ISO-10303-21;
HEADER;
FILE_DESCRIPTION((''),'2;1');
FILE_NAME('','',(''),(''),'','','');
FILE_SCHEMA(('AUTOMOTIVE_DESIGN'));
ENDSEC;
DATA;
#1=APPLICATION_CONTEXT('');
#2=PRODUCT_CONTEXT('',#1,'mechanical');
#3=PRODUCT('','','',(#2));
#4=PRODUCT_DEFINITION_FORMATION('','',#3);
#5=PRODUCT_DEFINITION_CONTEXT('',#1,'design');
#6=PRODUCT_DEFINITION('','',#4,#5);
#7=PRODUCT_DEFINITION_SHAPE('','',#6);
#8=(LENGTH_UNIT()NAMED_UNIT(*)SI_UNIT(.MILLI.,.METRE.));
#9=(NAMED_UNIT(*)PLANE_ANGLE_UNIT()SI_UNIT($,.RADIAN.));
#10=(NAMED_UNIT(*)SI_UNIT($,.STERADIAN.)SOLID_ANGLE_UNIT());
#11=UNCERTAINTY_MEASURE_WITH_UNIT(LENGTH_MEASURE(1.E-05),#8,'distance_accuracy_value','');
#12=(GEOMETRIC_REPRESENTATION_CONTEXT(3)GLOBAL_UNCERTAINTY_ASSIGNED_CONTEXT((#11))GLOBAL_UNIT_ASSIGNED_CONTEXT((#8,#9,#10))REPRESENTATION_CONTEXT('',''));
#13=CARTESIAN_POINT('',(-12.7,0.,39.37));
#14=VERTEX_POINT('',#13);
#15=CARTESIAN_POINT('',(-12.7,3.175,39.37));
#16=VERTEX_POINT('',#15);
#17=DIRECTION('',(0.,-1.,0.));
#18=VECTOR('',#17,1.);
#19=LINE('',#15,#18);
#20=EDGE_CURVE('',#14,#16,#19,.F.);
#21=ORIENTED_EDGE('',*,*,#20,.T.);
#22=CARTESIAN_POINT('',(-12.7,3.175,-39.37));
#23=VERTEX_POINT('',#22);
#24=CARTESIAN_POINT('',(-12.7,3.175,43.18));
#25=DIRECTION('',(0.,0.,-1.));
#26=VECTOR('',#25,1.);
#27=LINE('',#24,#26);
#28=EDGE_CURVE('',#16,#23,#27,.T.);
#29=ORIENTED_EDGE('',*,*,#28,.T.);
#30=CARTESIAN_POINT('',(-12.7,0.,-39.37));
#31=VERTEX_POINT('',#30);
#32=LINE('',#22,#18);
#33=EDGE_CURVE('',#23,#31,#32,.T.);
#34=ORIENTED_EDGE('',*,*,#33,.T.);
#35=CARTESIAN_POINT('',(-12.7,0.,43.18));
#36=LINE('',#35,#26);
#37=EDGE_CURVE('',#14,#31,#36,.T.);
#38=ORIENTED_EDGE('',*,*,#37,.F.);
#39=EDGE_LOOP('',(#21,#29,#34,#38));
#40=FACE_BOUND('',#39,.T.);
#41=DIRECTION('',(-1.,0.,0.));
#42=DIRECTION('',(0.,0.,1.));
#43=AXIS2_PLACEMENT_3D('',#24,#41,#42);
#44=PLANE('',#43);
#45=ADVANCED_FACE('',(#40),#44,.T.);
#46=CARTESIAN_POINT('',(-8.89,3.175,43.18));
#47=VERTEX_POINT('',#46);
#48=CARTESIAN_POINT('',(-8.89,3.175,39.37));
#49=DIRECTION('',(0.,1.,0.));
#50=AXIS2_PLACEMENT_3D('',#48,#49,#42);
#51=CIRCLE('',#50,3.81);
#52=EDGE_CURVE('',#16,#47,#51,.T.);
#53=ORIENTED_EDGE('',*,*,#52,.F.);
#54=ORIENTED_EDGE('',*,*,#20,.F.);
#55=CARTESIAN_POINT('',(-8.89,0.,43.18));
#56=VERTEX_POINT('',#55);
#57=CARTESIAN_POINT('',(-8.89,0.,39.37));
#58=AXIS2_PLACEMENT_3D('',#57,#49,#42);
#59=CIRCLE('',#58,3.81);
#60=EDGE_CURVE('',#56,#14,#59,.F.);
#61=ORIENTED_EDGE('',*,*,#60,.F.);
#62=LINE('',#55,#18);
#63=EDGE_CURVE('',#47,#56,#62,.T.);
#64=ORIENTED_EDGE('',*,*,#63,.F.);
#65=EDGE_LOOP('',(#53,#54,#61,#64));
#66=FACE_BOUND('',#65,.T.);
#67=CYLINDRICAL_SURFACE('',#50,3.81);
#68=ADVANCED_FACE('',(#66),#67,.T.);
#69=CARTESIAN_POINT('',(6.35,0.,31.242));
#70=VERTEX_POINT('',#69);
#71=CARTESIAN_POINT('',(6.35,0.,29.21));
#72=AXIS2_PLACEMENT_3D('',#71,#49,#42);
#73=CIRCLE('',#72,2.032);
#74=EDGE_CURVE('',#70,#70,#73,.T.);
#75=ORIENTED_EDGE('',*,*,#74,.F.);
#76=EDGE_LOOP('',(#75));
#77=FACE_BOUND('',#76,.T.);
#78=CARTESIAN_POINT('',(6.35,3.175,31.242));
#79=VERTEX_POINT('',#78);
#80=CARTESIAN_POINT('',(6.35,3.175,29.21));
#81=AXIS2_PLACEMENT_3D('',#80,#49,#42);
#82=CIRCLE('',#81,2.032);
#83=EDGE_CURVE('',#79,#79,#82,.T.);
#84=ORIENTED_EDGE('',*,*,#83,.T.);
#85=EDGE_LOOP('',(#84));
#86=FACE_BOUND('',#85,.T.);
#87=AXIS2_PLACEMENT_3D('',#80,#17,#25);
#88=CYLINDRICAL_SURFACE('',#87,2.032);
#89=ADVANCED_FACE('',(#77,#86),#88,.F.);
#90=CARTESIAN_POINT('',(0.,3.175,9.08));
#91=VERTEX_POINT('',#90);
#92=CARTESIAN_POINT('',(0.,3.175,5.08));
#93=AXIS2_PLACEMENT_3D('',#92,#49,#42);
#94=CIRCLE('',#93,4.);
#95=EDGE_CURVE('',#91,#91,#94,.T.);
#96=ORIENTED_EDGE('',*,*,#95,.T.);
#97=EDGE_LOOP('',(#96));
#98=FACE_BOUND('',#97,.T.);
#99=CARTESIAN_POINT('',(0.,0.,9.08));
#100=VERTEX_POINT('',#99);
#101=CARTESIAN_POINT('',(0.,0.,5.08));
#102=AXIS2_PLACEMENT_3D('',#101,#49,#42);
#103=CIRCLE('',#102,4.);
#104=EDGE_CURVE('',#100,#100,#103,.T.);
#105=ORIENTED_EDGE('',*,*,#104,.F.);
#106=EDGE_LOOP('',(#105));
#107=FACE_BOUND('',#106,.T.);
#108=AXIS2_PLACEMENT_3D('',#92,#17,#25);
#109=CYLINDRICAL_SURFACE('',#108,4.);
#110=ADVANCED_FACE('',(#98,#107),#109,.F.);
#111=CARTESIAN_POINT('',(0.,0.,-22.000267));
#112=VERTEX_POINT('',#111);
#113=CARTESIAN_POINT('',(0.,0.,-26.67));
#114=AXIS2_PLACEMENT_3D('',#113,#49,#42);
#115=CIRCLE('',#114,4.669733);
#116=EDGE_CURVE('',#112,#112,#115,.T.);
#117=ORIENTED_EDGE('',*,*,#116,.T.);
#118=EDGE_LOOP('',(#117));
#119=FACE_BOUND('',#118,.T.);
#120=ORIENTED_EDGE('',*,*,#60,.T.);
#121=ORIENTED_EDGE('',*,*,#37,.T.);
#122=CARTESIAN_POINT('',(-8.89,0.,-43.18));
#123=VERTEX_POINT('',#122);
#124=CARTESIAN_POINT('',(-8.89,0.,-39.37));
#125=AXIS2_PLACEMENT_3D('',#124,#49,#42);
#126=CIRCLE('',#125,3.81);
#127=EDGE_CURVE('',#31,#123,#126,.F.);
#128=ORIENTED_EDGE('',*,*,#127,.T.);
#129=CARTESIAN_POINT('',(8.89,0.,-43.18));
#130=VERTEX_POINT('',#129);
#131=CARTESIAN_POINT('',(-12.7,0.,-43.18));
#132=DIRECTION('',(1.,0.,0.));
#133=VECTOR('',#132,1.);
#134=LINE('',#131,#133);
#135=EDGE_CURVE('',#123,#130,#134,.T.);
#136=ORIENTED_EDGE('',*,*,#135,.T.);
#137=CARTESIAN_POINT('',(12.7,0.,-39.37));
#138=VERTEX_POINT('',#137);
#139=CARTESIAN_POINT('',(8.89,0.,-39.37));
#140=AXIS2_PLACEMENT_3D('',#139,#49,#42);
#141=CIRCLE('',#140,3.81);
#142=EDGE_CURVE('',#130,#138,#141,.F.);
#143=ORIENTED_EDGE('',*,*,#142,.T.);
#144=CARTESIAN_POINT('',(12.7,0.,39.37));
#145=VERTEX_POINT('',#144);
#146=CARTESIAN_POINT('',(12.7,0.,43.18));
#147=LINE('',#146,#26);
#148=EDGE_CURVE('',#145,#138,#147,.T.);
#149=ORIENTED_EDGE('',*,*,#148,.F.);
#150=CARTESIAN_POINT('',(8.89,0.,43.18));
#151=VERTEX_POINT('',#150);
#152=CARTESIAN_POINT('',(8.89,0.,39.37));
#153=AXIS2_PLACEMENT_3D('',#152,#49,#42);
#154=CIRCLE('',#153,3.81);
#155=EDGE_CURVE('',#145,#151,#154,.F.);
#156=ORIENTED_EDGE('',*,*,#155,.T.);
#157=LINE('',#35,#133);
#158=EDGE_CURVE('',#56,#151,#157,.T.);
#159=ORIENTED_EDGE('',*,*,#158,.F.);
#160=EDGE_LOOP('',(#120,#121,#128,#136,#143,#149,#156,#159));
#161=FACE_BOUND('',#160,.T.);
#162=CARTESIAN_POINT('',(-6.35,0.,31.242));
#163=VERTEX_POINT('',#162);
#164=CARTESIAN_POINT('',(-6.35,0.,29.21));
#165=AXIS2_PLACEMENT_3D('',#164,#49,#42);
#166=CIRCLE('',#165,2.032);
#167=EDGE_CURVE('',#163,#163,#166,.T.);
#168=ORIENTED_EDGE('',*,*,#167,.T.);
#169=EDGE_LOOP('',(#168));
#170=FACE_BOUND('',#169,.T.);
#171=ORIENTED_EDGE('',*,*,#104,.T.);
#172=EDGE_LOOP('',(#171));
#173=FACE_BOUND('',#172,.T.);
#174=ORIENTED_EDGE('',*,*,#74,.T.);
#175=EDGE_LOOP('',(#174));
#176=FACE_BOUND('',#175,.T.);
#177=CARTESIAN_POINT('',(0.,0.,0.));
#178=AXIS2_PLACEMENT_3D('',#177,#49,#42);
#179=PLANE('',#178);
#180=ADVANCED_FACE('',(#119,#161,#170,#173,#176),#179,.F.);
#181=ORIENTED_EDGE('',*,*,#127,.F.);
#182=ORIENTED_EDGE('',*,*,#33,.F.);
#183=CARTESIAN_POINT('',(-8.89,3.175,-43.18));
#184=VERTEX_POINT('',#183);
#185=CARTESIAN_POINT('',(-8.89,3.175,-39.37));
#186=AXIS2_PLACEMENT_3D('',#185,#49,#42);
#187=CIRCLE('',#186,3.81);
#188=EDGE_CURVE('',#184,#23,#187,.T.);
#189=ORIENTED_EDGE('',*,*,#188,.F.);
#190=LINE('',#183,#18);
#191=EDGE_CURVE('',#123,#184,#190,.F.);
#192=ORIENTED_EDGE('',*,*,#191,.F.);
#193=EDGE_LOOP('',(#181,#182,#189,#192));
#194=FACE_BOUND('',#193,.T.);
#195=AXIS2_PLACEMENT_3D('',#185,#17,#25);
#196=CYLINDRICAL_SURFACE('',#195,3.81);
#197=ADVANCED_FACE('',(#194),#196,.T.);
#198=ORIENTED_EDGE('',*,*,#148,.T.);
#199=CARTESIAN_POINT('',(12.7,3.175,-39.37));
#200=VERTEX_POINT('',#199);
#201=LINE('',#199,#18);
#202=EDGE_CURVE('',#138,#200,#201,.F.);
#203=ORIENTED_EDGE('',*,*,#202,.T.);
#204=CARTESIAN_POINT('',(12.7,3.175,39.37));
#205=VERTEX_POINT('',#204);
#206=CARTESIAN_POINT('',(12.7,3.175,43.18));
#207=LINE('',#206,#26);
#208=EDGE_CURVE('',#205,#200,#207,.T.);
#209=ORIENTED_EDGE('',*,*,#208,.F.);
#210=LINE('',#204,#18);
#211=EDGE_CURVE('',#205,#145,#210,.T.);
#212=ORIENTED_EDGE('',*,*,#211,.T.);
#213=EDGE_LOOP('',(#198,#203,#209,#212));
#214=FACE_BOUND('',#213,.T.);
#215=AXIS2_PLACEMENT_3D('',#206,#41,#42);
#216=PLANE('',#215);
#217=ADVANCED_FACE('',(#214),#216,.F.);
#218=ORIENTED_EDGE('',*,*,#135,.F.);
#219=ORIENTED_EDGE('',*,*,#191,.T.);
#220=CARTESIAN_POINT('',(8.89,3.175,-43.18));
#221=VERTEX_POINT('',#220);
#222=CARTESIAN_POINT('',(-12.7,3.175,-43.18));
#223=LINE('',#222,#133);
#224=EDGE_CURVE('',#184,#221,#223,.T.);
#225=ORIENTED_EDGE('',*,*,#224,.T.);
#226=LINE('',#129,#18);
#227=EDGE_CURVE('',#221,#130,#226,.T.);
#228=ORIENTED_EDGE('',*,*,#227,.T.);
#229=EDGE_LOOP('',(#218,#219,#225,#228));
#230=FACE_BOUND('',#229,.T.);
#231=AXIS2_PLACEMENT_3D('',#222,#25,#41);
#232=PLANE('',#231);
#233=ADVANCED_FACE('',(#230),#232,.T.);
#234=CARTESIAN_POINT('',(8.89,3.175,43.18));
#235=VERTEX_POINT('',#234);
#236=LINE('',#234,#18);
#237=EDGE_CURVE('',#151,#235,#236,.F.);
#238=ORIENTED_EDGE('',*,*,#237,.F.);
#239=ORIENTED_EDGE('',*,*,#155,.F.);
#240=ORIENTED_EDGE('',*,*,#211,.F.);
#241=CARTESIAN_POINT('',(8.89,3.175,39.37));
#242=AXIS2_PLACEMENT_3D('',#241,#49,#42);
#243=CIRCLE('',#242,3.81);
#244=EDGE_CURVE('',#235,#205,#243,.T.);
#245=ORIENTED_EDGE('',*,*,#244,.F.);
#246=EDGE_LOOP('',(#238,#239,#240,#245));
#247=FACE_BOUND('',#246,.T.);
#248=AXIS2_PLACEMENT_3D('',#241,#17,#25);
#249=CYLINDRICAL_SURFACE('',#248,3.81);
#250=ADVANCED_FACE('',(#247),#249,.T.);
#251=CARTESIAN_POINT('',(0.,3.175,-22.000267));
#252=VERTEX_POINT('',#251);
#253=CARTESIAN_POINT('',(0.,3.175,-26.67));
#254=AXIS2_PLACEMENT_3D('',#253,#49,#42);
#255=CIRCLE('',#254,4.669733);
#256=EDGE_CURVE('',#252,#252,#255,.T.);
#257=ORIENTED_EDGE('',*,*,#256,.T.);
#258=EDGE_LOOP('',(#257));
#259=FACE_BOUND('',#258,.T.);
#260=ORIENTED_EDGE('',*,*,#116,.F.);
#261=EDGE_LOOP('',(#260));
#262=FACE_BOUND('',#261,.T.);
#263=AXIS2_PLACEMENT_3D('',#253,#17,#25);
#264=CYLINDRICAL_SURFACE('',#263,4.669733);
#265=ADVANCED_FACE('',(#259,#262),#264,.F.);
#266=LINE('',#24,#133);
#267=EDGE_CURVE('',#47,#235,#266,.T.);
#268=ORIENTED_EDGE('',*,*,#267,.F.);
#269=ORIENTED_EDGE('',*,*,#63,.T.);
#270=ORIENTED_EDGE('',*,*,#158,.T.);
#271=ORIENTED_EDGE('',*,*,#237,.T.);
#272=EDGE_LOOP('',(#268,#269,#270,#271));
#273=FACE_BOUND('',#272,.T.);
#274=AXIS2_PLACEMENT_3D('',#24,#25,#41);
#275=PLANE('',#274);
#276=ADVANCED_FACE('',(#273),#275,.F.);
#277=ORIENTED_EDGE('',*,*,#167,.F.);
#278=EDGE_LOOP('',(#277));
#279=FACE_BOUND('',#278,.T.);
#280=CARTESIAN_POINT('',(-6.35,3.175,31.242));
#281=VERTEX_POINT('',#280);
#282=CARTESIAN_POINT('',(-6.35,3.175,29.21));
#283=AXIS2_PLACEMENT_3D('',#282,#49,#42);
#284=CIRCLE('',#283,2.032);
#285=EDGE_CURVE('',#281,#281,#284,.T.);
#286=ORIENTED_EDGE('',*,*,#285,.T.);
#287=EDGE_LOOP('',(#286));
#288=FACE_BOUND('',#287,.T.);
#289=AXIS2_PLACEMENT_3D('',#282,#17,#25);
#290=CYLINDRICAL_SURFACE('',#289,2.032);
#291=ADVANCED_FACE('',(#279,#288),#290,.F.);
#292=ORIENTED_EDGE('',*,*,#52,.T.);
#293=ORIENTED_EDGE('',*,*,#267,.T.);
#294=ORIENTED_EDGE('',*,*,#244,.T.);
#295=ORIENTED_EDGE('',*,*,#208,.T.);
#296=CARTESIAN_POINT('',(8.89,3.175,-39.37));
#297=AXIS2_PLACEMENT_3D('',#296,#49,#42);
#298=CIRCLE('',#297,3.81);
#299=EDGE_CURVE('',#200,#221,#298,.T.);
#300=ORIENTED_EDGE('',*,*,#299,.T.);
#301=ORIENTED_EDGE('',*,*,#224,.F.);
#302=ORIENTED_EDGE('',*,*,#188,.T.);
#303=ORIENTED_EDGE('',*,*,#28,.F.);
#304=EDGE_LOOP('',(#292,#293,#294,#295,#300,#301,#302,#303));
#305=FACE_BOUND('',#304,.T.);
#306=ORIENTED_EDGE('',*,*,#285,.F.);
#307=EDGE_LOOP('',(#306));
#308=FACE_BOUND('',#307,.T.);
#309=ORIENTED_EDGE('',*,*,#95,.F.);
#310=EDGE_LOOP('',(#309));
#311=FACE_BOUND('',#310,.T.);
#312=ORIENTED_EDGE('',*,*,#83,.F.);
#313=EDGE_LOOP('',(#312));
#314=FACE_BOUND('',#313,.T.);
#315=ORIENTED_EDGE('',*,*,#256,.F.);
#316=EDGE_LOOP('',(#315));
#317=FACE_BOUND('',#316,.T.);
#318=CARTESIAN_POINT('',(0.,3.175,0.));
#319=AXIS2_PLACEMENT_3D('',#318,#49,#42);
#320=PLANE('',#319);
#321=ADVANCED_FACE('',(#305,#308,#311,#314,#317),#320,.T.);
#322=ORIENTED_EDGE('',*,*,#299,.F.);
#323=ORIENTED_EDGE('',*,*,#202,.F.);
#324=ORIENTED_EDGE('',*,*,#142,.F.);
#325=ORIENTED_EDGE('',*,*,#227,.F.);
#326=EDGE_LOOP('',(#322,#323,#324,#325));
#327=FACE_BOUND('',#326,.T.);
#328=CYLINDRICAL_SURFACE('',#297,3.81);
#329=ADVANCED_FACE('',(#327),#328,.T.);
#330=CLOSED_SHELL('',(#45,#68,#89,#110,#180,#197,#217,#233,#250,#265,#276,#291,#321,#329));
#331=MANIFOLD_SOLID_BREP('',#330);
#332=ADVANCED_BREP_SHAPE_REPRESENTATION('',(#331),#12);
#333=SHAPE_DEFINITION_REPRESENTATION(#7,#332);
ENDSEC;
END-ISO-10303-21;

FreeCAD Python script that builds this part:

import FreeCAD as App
import Part
import Sketcher
from FreeCAD import Vector
Q = App.Units.Quantity


def edges_at(feature, points):
    """Names of the edges that pass closest to the given points."""
    edges = feature.Shape.Edges
    near = lambda p: min(range(len(edges)), key=lambda i: edges[i].distToShape(Part.Vertex(*p))[0])
    return sorted({f"Edge{near(p) + 1}" for p in points})

doc = App.newDocument("Part")
body = doc.addObject("PartDesign::Body", "Body")

sketch1 = body.newObject("Sketcher::SketchObject", "Sketch")
sketch1.AttachmentSupport = (doc.getObject("XZ_Plane"), [""])
sketch1.MapMode = "FlatFace"
sketch1.addGeometry(Part.LineSegment(Vector(-12.7, -43.18, 0), Vector(-12.7, 43.18, 0)), False)
sketch1.addGeometry(Part.LineSegment(Vector(-12.7, 43.18, 0), Vector(12.7, 43.18, 0)), False)
sketch1.addGeometry(Part.LineSegment(Vector(12.7, 43.18, 0), Vector(12.7, -43.18, 0)), False)
sketch1.addGeometry(Part.LineSegment(Vector(12.7, -43.18, 0), Vector(-12.7, -43.18, 0)), False)
sketch1.addGeometry(Part.Circle(Vector(-6.35, 29.21, 0), Vector(0, 0, 1), 2.032), False)
sketch1.addGeometry(Part.Circle(Vector(6.35, 29.21, 0), Vector(0, 0, 1), 2.032), False)
sketch1.addGeometry(Part.Circle(Vector(0, 5.08, 0), Vector(0, 0, 1), 4), False)
sketch1.addGeometry(Part.Circle(Vector(0, -26.67, 0), Vector(0, 0, 1), 4.669733), False)
sketch1.addConstraint(Sketcher.Constraint("Coincident", 0, 2, 1, 1))
sketch1.addConstraint(Sketcher.Constraint("Coincident", 1, 2, 2, 1))
sketch1.addConstraint(Sketcher.Constraint("Coincident", 2, 2, 3, 1))
sketch1.addConstraint(Sketcher.Constraint("Coincident", 3, 2, 0, 1))
sketch1.addConstraint(Sketcher.Constraint("Vertical", 0))
sketch1.addConstraint(Sketcher.Constraint("Horizontal", 1))
sketch1.addConstraint(Sketcher.Constraint("Vertical", 2))
sketch1.addConstraint(Sketcher.Constraint("Horizontal", 3))
sketch1.addConstraint(Sketcher.Constraint("Equal", 4, 5))
sketch1.addConstraint(Sketcher.Constraint("Symmetric", 0, 2, 2, 2, -1, 1))
sketch1.addConstraint(Sketcher.Constraint("Symmetric", 4, 3, 5, 3, -2))
sketch1.addConstraint(Sketcher.Constraint("PointOnObject", 6, 3, -2))
sketch1.addConstraint(Sketcher.Constraint("PointOnObject", 7, 3, -2))
sketch1.addConstraint(Sketcher.Constraint("Diameter", 4, Q("0.16 in")))
sketch1.addConstraint(Sketcher.Constraint("DistanceX", 1, 1, 1, 2, Q("1 in")))
sketch1.addConstraint(Sketcher.Constraint("DistanceY", 0, 1, 0, 2, Q("3.4 in")))
sketch1.addConstraint(Sketcher.Constraint("DistanceY", -1, 1, 6, 3, Q("0.2 in")))
sketch1.addConstraint(Sketcher.Constraint("DistanceX", 4, 3, 5, 3, Q("0.5 in")))
sketch1.addConstraint(Sketcher.Constraint("DistanceY", 7, 3, 4, 3, Q("2.2 in")))
sketch1.addConstraint(Sketcher.Constraint("Diameter", 6, 8.0))
sketch1.addConstraint(Sketcher.Constraint("DistanceY", -1, 1, 4, 3, Q("1.15 in")))
sketch1.addConstraint(Sketcher.Constraint("Diameter", 7, 9.339466))
pad1 = body.newObject("PartDesign::Pad", "Pad")
pad1.Profile = sketch1
pad1.Length = Q("0.125 in")
pad1.Reversed = True
doc.recompute()

fillet = body.newObject("PartDesign::Fillet", "Fillet")
fillet.Base = (pad1, edges_at(pad1, [
    (-12.7, 1.587, 43.18),
    (-12.7, 1.587, -43.18),
    (12.7, 1.587, -43.18),
    (12.7, 1.587, 43.18),
]))
fillet.Radius = Q("0.15 in")

doc.recompute()
